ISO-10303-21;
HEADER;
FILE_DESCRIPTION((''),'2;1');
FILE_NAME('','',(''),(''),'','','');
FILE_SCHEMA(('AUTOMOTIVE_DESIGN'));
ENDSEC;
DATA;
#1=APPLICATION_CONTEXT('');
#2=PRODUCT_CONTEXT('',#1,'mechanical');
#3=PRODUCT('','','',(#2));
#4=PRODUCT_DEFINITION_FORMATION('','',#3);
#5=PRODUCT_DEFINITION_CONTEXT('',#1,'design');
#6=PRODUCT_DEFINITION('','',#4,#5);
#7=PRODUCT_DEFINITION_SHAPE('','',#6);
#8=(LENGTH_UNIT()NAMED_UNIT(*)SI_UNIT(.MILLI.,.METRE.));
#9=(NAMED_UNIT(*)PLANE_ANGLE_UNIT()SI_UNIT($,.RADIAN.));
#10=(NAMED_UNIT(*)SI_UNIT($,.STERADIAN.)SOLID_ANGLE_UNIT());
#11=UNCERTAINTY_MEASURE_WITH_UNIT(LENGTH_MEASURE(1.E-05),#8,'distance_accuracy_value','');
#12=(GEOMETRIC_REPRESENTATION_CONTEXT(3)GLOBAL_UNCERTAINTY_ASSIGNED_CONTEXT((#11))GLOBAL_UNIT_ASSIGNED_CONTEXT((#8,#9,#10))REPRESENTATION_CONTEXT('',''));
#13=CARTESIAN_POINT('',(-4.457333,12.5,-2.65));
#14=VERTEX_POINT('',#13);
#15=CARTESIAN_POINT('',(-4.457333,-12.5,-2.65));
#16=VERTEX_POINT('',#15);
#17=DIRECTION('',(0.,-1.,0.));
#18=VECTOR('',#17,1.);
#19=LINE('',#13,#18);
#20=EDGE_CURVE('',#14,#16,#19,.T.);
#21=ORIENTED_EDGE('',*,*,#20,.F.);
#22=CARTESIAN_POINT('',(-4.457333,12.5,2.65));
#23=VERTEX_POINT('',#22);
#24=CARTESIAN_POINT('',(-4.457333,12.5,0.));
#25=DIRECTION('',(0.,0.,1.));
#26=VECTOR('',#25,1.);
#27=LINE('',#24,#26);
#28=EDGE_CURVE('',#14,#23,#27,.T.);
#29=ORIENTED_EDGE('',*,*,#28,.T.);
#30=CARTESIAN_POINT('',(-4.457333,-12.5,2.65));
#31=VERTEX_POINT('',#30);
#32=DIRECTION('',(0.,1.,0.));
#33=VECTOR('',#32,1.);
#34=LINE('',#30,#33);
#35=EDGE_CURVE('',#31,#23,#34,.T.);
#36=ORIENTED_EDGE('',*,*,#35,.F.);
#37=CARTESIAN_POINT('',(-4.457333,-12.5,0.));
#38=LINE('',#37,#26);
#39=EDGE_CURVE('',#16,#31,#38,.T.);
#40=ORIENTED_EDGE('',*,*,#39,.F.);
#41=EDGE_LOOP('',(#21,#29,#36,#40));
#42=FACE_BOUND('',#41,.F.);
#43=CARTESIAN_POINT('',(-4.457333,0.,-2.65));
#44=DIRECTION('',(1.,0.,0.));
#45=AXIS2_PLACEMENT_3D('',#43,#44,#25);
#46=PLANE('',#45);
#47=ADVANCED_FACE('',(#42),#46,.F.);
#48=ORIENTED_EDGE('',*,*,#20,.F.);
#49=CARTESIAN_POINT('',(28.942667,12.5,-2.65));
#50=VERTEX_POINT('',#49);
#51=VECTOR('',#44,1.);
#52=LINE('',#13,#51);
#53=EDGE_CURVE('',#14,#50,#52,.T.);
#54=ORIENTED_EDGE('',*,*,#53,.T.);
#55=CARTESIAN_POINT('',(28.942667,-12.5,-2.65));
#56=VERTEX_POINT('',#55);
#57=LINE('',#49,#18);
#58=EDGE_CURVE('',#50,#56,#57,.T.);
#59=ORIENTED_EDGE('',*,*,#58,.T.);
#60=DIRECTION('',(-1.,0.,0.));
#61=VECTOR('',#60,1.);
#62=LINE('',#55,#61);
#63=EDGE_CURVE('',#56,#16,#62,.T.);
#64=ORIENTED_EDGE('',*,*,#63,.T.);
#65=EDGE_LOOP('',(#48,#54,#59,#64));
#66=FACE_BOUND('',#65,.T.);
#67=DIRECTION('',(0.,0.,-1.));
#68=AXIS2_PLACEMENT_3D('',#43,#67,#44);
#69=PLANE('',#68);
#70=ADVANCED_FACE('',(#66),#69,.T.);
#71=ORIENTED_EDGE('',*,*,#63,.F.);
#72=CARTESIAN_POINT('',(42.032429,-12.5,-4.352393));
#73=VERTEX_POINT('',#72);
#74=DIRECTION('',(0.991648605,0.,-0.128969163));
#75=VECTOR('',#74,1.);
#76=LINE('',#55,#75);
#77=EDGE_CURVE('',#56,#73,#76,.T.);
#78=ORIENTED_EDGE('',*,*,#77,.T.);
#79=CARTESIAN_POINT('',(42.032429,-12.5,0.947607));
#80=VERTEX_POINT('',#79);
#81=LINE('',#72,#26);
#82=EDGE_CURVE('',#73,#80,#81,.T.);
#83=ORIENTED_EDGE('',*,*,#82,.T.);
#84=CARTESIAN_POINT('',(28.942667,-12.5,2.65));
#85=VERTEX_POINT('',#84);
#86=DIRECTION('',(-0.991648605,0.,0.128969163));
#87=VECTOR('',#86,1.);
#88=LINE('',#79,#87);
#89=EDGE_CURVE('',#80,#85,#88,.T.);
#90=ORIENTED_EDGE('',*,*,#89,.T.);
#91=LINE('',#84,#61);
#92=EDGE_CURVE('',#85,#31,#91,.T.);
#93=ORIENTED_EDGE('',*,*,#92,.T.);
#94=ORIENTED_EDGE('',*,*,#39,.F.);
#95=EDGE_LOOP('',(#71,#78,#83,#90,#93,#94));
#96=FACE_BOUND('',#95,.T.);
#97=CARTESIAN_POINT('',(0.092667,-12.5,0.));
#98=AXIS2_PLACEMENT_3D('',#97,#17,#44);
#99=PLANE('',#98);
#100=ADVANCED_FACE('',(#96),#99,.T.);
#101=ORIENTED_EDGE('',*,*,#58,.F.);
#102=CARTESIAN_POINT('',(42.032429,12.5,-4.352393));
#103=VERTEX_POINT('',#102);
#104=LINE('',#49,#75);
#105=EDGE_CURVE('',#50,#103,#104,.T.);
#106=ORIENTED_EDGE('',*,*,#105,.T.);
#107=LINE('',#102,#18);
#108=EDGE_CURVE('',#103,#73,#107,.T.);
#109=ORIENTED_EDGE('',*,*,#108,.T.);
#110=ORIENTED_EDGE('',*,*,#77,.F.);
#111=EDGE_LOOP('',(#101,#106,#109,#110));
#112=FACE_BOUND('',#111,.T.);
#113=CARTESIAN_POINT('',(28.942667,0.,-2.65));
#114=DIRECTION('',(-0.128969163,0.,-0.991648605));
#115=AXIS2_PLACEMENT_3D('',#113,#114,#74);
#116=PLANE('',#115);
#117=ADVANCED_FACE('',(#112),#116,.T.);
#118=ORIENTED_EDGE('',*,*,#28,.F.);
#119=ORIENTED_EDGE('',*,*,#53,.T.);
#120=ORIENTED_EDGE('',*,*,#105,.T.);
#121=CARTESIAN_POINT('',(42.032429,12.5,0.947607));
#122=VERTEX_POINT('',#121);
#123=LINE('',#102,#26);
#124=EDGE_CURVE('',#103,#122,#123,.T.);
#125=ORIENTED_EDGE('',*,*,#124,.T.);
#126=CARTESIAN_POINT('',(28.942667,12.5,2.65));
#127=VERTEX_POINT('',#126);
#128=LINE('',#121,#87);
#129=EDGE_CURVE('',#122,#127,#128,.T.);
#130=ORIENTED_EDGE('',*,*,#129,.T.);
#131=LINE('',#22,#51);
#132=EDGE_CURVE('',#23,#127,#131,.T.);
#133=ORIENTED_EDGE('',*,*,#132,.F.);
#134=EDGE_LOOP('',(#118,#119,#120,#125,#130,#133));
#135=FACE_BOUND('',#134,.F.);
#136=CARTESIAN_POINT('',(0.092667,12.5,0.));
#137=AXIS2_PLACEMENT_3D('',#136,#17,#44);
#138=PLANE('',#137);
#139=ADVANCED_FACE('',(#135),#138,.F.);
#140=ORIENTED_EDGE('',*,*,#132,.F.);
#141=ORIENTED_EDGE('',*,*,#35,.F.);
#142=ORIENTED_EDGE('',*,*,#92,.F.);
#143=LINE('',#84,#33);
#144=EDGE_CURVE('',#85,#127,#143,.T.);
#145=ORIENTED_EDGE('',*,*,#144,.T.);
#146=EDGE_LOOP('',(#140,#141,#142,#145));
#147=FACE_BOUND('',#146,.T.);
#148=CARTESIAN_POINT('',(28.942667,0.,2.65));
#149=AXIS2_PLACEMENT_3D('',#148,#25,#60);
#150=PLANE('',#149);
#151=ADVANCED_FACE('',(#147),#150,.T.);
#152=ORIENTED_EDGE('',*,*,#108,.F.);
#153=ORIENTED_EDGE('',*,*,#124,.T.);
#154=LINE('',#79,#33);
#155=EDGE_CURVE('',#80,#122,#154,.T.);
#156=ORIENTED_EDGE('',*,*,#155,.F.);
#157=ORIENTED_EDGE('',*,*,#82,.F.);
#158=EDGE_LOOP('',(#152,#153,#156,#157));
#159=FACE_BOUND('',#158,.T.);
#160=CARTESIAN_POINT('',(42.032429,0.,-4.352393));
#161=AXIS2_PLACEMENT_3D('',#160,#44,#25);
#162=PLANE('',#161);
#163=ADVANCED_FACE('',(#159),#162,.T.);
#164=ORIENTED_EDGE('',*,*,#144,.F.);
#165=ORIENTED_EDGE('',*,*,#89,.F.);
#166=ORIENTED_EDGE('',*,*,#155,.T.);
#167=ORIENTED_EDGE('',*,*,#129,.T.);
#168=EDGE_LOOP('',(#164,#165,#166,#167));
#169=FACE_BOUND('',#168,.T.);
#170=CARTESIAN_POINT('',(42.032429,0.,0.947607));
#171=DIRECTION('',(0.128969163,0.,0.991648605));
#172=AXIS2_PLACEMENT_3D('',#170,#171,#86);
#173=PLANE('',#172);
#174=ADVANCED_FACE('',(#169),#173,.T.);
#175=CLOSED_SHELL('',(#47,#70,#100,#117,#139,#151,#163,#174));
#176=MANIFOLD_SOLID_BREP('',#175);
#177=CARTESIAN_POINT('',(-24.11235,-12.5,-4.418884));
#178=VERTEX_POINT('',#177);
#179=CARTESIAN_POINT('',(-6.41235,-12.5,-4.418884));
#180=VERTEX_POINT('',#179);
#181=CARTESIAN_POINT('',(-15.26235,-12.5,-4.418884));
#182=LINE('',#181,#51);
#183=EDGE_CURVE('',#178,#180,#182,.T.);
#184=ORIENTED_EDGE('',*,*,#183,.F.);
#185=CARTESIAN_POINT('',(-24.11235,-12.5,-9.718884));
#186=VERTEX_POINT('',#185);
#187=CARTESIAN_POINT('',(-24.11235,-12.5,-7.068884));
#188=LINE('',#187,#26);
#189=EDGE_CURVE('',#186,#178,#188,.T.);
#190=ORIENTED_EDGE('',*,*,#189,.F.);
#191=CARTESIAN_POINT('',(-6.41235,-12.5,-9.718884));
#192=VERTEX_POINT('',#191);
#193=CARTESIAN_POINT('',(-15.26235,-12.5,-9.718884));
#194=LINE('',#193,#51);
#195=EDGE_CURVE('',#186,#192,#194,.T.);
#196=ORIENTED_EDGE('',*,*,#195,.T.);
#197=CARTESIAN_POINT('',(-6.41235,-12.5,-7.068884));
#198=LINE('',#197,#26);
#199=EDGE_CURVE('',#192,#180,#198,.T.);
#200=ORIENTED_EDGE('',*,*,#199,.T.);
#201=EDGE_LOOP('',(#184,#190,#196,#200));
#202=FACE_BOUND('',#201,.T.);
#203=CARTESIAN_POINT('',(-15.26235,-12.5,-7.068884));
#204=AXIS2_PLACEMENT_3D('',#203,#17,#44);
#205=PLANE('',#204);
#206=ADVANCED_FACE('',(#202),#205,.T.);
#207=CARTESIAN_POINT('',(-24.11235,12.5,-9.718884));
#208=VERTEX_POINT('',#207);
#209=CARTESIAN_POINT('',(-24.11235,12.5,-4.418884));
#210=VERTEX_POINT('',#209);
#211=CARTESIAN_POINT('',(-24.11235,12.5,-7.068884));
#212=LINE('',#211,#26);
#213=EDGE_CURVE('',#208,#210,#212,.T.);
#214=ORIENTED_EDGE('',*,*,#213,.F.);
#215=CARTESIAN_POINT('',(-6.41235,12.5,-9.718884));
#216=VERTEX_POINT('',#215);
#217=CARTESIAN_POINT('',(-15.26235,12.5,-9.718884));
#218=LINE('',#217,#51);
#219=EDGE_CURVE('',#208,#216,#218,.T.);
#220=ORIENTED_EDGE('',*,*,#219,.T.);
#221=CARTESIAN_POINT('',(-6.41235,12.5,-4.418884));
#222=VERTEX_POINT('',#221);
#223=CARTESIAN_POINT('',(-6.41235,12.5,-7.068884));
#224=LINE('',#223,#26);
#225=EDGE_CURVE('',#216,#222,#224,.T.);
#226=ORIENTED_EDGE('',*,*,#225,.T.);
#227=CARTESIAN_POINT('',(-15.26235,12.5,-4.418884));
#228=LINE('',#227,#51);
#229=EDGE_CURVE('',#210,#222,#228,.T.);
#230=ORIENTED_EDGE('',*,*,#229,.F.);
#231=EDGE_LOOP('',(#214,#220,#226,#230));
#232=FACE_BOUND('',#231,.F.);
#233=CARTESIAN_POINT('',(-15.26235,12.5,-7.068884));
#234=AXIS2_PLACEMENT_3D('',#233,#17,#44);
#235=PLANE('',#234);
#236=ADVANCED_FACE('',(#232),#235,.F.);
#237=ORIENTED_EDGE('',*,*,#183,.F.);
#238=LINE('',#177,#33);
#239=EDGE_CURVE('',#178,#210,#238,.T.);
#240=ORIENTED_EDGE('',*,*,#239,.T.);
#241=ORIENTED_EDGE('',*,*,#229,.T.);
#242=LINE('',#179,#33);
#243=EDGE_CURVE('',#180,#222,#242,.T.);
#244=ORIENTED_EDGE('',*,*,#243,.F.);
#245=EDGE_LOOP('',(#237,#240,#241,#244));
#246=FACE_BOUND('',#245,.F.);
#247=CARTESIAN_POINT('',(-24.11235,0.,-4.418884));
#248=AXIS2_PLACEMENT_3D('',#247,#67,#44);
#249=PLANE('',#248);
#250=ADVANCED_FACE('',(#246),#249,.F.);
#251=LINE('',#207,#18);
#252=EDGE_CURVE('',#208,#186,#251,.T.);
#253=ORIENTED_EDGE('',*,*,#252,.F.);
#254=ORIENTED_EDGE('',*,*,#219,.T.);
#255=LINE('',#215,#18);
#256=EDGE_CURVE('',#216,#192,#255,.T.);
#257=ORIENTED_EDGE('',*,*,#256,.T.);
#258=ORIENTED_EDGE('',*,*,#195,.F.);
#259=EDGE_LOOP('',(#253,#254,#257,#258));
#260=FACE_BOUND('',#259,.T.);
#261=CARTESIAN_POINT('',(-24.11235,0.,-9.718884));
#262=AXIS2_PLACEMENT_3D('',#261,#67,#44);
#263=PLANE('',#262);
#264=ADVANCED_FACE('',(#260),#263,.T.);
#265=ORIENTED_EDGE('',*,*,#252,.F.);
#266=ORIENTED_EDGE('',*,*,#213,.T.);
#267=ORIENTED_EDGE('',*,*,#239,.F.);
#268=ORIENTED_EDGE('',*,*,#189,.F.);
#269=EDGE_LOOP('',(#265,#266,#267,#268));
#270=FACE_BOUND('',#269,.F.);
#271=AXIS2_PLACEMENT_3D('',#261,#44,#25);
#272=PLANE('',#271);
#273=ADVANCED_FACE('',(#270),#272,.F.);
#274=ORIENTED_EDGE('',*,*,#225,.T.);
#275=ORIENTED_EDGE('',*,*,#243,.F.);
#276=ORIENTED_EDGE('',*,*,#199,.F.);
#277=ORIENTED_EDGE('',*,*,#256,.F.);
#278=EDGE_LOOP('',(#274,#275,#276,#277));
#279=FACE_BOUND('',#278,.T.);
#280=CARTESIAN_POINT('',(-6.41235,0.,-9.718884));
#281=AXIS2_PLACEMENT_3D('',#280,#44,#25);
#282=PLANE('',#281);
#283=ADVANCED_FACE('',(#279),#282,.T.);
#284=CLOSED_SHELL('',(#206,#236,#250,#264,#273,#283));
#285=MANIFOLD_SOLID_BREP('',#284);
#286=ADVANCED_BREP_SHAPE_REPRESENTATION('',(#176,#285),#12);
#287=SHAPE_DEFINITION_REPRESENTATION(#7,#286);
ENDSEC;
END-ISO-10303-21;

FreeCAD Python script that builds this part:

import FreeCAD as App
import Part
import Sketcher
Q = App.Units.Quantity

doc = App.newDocument("Part")
body = doc.addObject("PartDesign::Body", "Body")

# Sketch on XZ plane
sketch1 = body.newObject("Sketcher::SketchObject", "Sketch")
sketch1.AttachmentSupport = (doc.getObject("XZ_Plane"), [""])
sketch1.MapMode = "FlatFace"
sketch1.addGeometry([
    Part.LineSegment(App.Vector(-24, -4, 0), App.Vector(-24, -10, 0)),
    Part.LineSegment(App.Vector(-24, -10, 0), App.Vector(-6, -10, 0)),
    Part.LineSegment(App.Vector(-6, -10, 0), App.Vector(-6, -4, 0)),
    Part.LineSegment(App.Vector(-6, -4, 0), App.Vector(-24, -4, 0)),
], False)
sketch1.addConstraint([
    Sketcher.Constraint("Coincident", 0, 2, 1, 1),
    Sketcher.Constraint("Coincident", 1, 2, 2, 1),
    Sketcher.Constraint("Coincident", 2, 2, 3, 1),
    Sketcher.Constraint("Coincident", 3, 2, 0, 1),
    Sketcher.Constraint("Vertical", 0),
    Sketcher.Constraint("Horizontal", 1),
    Sketcher.Constraint("Vertical", 2),
    Sketcher.Constraint("Horizontal", 3),
    Sketcher.Constraint("DistanceX", 1, 1, 1, 2, Q("17.7 mm")),
    Sketcher.Constraint("DistanceY", 0, 2, 0, 1, Q("5.3 mm")),
    Sketcher.Constraint("DistanceX", 0, 2, -1, 1, Q("24.11235 mm")),
    Sketcher.Constraint("DistanceY", 0, 2, -1, 1, Q("9.718884 mm")),
])
pad1 = body.newObject("PartDesign::Pad", "Pad")
pad1.Profile = sketch1
pad1.Length = 25
pad1.Midplane = True
body2 = doc.addObject("PartDesign::Body", "Body001")

# Sketch on XZ plane
sketch2 = body2.newObject("Sketcher::SketchObject", "Sketch001")
sketch2.AttachmentSupport = (doc.getObject("XZ_Plane001"), [""])
sketch2.MapMode = "FlatFace"
sketch2.addGeometry([
    Part.LineSegment(App.Vector(-4, 3, 0), App.Vector(-4, -3, 0)),
    Part.LineSegment(App.Vector(-4, -3, 0), App.Vector(29, -3, 0)),
    Part.LineSegment(App.Vector(29, -3, 0), App.Vector(29, 3, 0)),
    Part.LineSegment(App.Vector(29, 3, 0), App.Vector(-4, 3, 0)),
], False)
sketch2.addConstraint([
    Sketcher.Constraint("Coincident", 0, 2, 1, 1),
    Sketcher.Constraint("Coincident", 1, 2, 2, 1),
    Sketcher.Constraint("Coincident", 2, 2, 3, 1),
    Sketcher.Constraint("Coincident", 3, 2, 0, 1),
    Sketcher.Constraint("Vertical", 0),
    Sketcher.Constraint("Horizontal", 1),
    Sketcher.Constraint("Vertical", 2),
    Sketcher.Constraint("Horizontal", 3),
    Sketcher.Constraint("DistanceX", 1, 1, 1, 2, Q("33.4 mm")),
    Sketcher.Constraint("DistanceY", 0, 2, 0, 1, Q("5.3 mm")),
    Sketcher.Constraint("DistanceY", 0, 2, -1, 1, Q("2.65 mm")),
    Sketcher.Constraint("DistanceX", 0, 2, -1, 1, Q("4.457333 mm")),
])
pad2 = body2.newObject("PartDesign::Pad", "Pad001")
pad2.Profile = sketch2
pad2.Length = 25
pad2.Midplane = True

# Sketch on XZ plane
sketch3 = body2.newObject("Sketcher::SketchObject", "Sketch002")
sketch3.AttachmentSupport = (doc.getObject("XZ_Plane001"), [""])
sketch3.MapMode = "FlatFace"
sketch3.addGeometry([
    Part.LineSegment(App.Vector(5, 3, 0), App.Vector(5, -3, 0)),  # 0
    Part.LineSegment(App.Vector(5, -3, 0), App.Vector(29, -3, 0)),  # 1
    Part.LineSegment(App.Vector(29, -3, 0), App.Vector(42, -4, 0)),  # 2
    Part.LineSegment(App.Vector(42, -4, 0), App.Vector(42, 1, 0)),  # 3
    Part.LineSegment(App.Vector(42, 1, 0), App.Vector(29, 3, 0)),  # 4
    Part.LineSegment(App.Vector(29, 3, 0), App.Vector(5, 3, 0)),  # 5
], False)
sketch3.addConstraint([
    Sketcher.Constraint("Coincident", 0, 2, 1, 1),
    Sketcher.Constraint("Coincident", 1, 2, 2, 1),
    Sketcher.Constraint("Coincident", 2, 2, 3, 1),
    Sketcher.Constraint("Coincident", 3, 2, 4, 1),
    Sketcher.Constraint("Coincident", 4, 2, 5, 1),
    Sketcher.Constraint("Coincident", 5, 2, 0, 1),
    Sketcher.Constraint("Vertical", 0),
    Sketcher.Constraint("Horizontal", 1),
    Sketcher.Constraint("Vertical", 3),
    Sketcher.Constraint("Horizontal", 5),
    Sketcher.Constraint("Symmetric", 1, 2, 4, 2, -1),
    Sketcher.Constraint("Parallel", 2, 4),
    Sketcher.Constraint("DistanceX", 1, 1, 1, 2, Q("24.3 mm")),
    Sketcher.Constraint("DistanceY", 0, 2, 0, 1, Q("5.3 mm")),
    Sketcher.Constraint("Distance", 2, Q("13.2 mm")),
    Sketcher.Constraint("DistanceX", -1, 1, 2, 2, Q("42.032429 mm")),
    Sketcher.Constraint("DistanceX", 0, 2, 2, 2, Q("37.389762 mm")),
])
pad3 = body2.newObject("PartDesign::Pad", "Pad002")
pad3.Profile = sketch3
pad3.Length = 25
pad3.Midplane = True

doc.recompute()
